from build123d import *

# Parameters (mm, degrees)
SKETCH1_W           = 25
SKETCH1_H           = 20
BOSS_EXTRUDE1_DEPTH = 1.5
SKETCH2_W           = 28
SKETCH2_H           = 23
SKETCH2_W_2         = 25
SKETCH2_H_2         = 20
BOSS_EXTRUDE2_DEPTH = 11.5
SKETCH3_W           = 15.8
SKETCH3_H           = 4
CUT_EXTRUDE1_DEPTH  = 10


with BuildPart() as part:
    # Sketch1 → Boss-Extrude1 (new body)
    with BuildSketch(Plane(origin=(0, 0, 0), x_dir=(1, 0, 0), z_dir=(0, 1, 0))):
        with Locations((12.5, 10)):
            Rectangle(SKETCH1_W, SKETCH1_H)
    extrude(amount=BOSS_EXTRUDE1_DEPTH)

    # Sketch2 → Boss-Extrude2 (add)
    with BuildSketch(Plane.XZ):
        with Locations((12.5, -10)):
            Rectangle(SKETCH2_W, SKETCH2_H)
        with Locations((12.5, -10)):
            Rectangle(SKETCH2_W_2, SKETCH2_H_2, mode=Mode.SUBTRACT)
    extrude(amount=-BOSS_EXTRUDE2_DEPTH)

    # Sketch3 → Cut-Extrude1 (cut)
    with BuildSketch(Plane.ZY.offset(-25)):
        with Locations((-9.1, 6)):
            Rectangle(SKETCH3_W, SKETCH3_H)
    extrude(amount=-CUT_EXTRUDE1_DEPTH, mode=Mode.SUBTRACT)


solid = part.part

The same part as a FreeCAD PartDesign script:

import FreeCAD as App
import Part
import Sketcher

V = App.Vector

doc = App.newDocument("Part")
body = doc.addObject("PartDesign::Body", "Body")

# Sketch on XZ plane
sketch1 = body.newObject("Sketcher::SketchObject", "Sketch")
sketch1.AttachmentSupport = (doc.getObject("XZ_Plane"), [""])
sketch1.MapMode = "FlatFace"
sketch1.addGeometry(Part.LineSegment(V(0, -20, 0), V(0, 0, 0)), False)
sketch1.addGeometry(Part.LineSegment(V(0, 0, 0), V(25, 0, 0)), False)
sketch1.addGeometry(Part.LineSegment(V(25, 0, 0), V(25, -20, 0)), False)
sketch1.addGeometry(Part.LineSegment(V(25, -20, 0), V(0, -20, 0)), False)
sketch1.addConstraint(Sketcher.Constraint("Coincident", 0, 2, 1, 1))
sketch1.addConstraint(Sketcher.Constraint("Coincident", 1, 2, 2, 1))
sketch1.addConstraint(Sketcher.Constraint("Coincident", 2, 2, 3, 1))
sketch1.addConstraint(Sketcher.Constraint("Coincident", 3, 2, 0, 1))
sketch1.addConstraint(Sketcher.Constraint("Vertical", 0))
sketch1.addConstraint(Sketcher.Constraint("Horizontal", 1))
sketch1.addConstraint(Sketcher.Constraint("Vertical", 2))
sketch1.addConstraint(Sketcher.Constraint("Horizontal", 3))
sketch1.addConstraint(Sketcher.Constraint("Coincident", 0, 2, -1, 1))
sketch1.addConstraint(Sketcher.Constraint("DistanceX", 1, 1, 1, 2, 25.0))
sketch1.addConstraint(Sketcher.Constraint("DistanceY", 0, 1, 0, 2, 20.0))
pad1 = body.newObject("PartDesign::Pad", "Pad")
pad1.Profile = sketch1
pad1.Length = 1.5
pad1.Reversed = True

# Sketch on XZ plane
sketch2 = body.newObject("Sketcher::SketchObject", "Sketch001")
sketch2.AttachmentSupport = (doc.getObject("XZ_Plane"), [""])
sketch2.MapMode = "FlatFace"
sketch2.addGeometry(Part.LineSegment(V(-1.5, 1.5, 0), V(-1.5, -21.5, 0)), False)
sketch2.addGeometry(Part.LineSegment(V(-1.5, -21.5, 0), V(26.5, -21.5, 0)), False)
sketch2.addGeometry(Part.LineSegment(V(26.5, -21.5, 0), V(26.5, 1.5, 0)), False)
sketch2.addGeometry(Part.LineSegment(V(26.5, 1.5, 0), V(-1.5, 1.5, 0)), False)
sketch2.addGeometry(Part.LineSegment(V(25, -20, 0), V(0, -20, 0)), False)
sketch2.addGeometry(Part.LineSegment(V(0, -20, 0), V(0, 0, 0)), False)
sketch2.addGeometry(Part.LineSegment(V(0, 0, 0), V(25, 0, 0)), False)
sketch2.addGeometry(Part.LineSegment(V(25, 0, 0), V(25, -20, 0)), False)
sketch2.addConstraint(Sketcher.Constraint("Coincident", 0, 2, 1, 1))
sketch2.addConstraint(Sketcher.Constraint("Coincident", 1, 2, 2, 1))
sketch2.addConstraint(Sketcher.Constraint("Coincident", 2, 2, 3, 1))
sketch2.addConstraint(Sketcher.Constraint("Coincident", 3, 2, 0, 1))
sketch2.addConstraint(Sketcher.Constraint("Coincident", 4, 2, 5, 1))
sketch2.addConstraint(Sketcher.Constraint("Coincident", 5, 2, 6, 1))
sketch2.addConstraint(Sketcher.Constraint("Coincident", 6, 2, 7, 1))
sketch2.addConstraint(Sketcher.Constraint("Coincident", 7, 2, 4, 1))
sketch2.addConstraint(Sketcher.Constraint("Vertical", 0))
sketch2.addConstraint(Sketcher.Constraint("Horizontal", 1))
sketch2.addConstraint(Sketcher.Constraint("Vertical", 2))
sketch2.addConstraint(Sketcher.Constraint("Horizontal", 3))
sketch2.addConstraint(Sketcher.Constraint("Horizontal", 4))
sketch2.addConstraint(Sketcher.Constraint("Vertical", 5))
sketch2.addConstraint(Sketcher.Constraint("Horizontal", 6))
sketch2.addConstraint(Sketcher.Constraint("Vertical", 7))
sketch2.addConstraint(Sketcher.Constraint("Coincident", 5, 2, -1, 1))
sketch2.addConstraint(Sketcher.Constraint("DistanceX", 1, 1, 1, 2, 28.0))
sketch2.addConstraint(Sketcher.Constraint("DistanceX", 4, 2, 4, 1, 25.0))
sketch2.addConstraint(Sketcher.Constraint("DistanceY", 0, 2, 0, 1, 23.0))
sketch2.addConstraint(Sketcher.Constraint("DistanceY", 5, 1, 5, 2, 20.0))
sketch2.addConstraint(Sketcher.Constraint("DistanceX", 0, 2, -1, 1, 1.5))
sketch2.addConstraint(Sketcher.Constraint("DistanceY", 0, 2, -1, 1, 21.5))
pad2 = body.newObject("PartDesign::Pad", "Pad001")
pad2.Profile = sketch2
pad2.Length = 11.5
pad2.Reversed = True

# Sketch on YZ plane
sketch3 = body.newObject("Sketcher::SketchObject", "Sketch002")
sketch3.AttachmentSupport = (doc.getObject("YZ_Plane"), [""])
sketch3.MapMode = "FlatFace"
sketch3.AttachmentOffset = App.Placement(V(0, 0, 25), App.Rotation())
sketch3.addGeometry(Part.LineSegment(V(8, -17, 0), V(4, -17, 0)), False)
sketch3.addGeometry(Part.LineSegment(V(4, -17, 0), V(4, -1.2, 0)), False)
sketch3.addGeometry(Part.LineSegment(V(4, -1.2, 0), V(8, -1.2, 0)), False)
sketch3.addGeometry(Part.LineSegment(V(8, -1.2, 0), V(8, -17, 0)), False)
sketch3.addConstraint(Sketcher.Constraint("Coincident", 0, 2, 1, 1))
sketch3.addConstraint(Sketcher.Constraint("Coincident", 1, 2, 2, 1))
sketch3.addConstraint(Sketcher.Constraint("Coincident", 2, 2, 3, 1))
sketch3.addConstraint(Sketcher.Constraint("Coincident", 3, 2, 0, 1))
sketch3.addConstraint(Sketcher.Constraint("Horizontal", 0))
sketch3.addConstraint(Sketcher.Constraint("Vertical", 1))
sketch3.addConstraint(Sketcher.Constraint("Horizontal", 2))
sketch3.addConstraint(Sketcher.Constraint("Vertical", 3))
sketch3.addConstraint(Sketcher.Constraint("DistanceX", 0, 2, 0, 1, 4.0))
sketch3.addConstraint(Sketcher.Constraint("DistanceY", 1, 1, 1, 2, 15.8))
sketch3.addConstraint(Sketcher.Constraint("DistanceX", -1, 1, 0, 2, 4.0))
sketch3.addConstraint(Sketcher.Constraint("DistanceY", 0, 2, -1, 1, 17.0))
pocket1 = body.newObject("PartDesign::Pocket", "Pocket")
pocket1.Profile = sketch3
pocket1.Length = 10
pocket1.Reversed = True

doc.recompute()
